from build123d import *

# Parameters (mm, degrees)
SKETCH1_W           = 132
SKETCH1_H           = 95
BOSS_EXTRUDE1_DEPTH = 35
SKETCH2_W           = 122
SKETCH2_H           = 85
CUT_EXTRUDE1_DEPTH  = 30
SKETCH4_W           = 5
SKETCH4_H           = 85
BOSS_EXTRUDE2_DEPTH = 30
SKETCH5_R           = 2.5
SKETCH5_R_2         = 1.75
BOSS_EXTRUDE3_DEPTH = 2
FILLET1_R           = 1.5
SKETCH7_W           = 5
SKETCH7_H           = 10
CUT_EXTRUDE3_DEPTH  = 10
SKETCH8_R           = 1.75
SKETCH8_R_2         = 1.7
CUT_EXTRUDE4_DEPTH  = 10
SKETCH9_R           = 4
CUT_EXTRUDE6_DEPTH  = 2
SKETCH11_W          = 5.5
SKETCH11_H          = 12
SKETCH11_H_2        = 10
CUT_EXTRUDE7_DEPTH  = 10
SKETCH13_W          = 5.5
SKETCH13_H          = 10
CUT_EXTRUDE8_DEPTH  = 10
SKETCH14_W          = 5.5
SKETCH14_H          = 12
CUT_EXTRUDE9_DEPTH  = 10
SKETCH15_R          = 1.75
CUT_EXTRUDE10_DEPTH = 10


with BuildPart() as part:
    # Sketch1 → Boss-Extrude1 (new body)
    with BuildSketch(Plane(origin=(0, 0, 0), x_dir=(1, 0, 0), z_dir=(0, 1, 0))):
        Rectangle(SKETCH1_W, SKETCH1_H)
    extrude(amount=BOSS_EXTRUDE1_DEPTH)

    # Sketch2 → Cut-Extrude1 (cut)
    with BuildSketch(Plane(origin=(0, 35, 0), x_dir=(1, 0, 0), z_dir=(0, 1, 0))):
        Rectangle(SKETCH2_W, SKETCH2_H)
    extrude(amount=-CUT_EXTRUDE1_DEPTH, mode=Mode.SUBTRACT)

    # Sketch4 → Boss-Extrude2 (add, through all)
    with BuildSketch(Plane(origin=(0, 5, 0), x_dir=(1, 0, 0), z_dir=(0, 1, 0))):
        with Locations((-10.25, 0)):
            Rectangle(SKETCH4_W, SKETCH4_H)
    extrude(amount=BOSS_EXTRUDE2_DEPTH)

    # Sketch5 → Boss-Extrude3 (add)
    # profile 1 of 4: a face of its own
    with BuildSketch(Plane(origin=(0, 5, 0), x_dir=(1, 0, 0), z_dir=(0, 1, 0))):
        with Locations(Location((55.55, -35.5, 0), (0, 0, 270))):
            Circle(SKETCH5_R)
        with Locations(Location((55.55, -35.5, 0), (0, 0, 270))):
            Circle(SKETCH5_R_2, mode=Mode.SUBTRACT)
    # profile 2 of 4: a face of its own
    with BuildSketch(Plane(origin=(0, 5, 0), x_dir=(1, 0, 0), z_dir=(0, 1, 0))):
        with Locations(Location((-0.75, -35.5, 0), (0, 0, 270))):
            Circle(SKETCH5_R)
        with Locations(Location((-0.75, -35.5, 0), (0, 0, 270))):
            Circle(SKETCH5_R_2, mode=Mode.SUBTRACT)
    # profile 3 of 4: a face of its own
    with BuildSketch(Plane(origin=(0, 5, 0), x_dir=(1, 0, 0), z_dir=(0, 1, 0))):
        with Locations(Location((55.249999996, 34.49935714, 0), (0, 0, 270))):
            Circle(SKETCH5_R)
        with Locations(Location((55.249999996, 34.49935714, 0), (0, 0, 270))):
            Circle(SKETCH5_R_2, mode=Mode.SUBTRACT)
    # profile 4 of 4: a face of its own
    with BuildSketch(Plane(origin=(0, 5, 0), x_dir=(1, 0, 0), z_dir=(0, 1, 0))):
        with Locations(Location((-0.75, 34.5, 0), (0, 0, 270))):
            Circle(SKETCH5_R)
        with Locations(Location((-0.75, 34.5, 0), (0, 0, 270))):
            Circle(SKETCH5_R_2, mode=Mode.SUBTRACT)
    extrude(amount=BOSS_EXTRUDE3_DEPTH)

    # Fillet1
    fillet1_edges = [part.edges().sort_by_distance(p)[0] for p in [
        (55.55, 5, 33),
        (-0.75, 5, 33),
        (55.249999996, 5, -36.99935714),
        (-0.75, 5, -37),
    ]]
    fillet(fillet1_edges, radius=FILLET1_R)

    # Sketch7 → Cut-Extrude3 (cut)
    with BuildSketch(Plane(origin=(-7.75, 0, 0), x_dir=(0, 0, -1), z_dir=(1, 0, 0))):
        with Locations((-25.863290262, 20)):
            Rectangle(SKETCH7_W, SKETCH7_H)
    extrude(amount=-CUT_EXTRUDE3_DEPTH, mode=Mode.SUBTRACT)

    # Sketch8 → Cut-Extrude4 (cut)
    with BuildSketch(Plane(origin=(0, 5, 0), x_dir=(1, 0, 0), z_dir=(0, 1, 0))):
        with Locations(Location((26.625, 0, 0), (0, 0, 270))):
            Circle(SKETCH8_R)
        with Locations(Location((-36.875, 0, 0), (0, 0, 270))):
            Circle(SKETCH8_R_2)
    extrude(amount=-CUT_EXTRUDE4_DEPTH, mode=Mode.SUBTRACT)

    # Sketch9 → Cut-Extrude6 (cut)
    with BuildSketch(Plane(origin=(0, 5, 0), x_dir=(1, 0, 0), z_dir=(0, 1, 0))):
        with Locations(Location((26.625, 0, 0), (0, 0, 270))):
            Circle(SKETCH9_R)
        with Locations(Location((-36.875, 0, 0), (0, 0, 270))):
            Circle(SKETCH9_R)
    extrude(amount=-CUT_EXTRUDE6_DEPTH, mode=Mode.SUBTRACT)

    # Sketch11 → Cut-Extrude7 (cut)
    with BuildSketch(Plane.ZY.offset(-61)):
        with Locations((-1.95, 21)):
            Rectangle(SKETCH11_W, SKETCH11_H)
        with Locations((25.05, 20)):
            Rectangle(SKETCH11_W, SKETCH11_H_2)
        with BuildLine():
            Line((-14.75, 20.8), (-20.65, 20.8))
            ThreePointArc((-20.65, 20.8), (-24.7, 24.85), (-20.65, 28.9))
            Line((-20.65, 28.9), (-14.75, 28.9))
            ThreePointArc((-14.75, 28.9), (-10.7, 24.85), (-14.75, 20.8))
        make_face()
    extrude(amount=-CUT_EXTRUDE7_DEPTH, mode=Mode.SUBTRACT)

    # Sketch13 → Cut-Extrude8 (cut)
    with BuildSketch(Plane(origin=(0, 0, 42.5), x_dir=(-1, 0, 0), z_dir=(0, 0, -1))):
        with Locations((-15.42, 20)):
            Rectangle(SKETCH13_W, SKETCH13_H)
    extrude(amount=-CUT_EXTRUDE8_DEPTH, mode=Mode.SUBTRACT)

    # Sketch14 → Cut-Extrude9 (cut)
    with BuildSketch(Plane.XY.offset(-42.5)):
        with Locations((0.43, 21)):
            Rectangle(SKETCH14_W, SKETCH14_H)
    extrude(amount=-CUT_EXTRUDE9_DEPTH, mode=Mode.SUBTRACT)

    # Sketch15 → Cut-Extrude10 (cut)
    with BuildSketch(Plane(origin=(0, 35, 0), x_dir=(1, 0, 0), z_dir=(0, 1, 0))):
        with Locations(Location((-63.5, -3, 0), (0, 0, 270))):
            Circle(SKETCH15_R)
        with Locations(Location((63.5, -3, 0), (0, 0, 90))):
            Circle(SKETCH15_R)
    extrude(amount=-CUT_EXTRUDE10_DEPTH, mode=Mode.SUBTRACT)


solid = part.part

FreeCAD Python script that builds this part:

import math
import FreeCAD as App
import Part
import Sketcher


def edges_at(feature, points):
    """Names of the edges that pass closest to the given points."""
    edges = feature.Shape.Edges
    near = lambda p: min(range(len(edges)), key=lambda i: edges[i].distToShape(Part.Vertex(*p))[0])
    return sorted({f"Edge{near(p) + 1}" for p in points})

doc = App.newDocument("Part")
body = doc.addObject("PartDesign::Body", "Body")

sketch1 = doc.addObject("Sketcher::SketchObject", "Sketch")
body.addObject(sketch1)
sketch1.AttachmentSupport = (doc.XZ_Plane, [""])
sketch1.MapMode = "FlatFace"
sketch1.addGeometry(Part.LineSegment(App.Vector(-66, -47.5, 0), App.Vector(-66, 47.5, 0)), False)
sketch1.addGeometry(Part.LineSegment(App.Vector(-66, 47.5, 0), App.Vector(66, 47.5, 0)), False)
sketch1.addGeometry(Part.LineSegment(App.Vector(66, 47.5, 0), App.Vector(66, -47.5, 0)), False)
sketch1.addGeometry(Part.LineSegment(App.Vector(66, -47.5, 0), App.Vector(-66, -47.5, 0)), False)
sketch1.addConstraint(Sketcher.Constraint("Coincident", 0, 2, 1, 1))
sketch1.addConstraint(Sketcher.Constraint("Coincident", 1, 2, 2, 1))
sketch1.addConstraint(Sketcher.Constraint("Coincident", 2, 2, 3, 1))
sketch1.addConstraint(Sketcher.Constraint("Coincident", 3, 2, 0, 1))
sketch1.addConstraint(Sketcher.Constraint("Vertical", 0))
sketch1.addConstraint(Sketcher.Constraint("Horizontal", 1))
sketch1.addConstraint(Sketcher.Constraint("Vertical", 2))
sketch1.addConstraint(Sketcher.Constraint("Horizontal", 3))
sketch1.addConstraint(Sketcher.Constraint("Symmetric", 0, 2, 2, 2, -1, 1))
sketch1.addConstraint(Sketcher.Constraint("DistanceX", 1, 1, 1, 2, 132.0))
sketch1.addConstraint(Sketcher.Constraint("DistanceY", 0, 1, 0, 2, 95.0))
pad1 = doc.addObject("PartDesign::Pad", "Pad")
body.addObject(pad1)
pad1.Profile = sketch1
pad1.Length = 35
pad1.Reversed = True

sketch2 = doc.addObject("Sketcher::SketchObject", "Sketch001")
body.addObject(sketch2)
sketch2.AttachmentSupport = (doc.XZ_Plane, [""])
sketch2.MapMode = "FlatFace"
sketch2.AttachmentOffset = App.Placement(App.Vector(0, 0, -35), App.Rotation())
sketch2.addGeometry(Part.LineSegment(App.Vector(-61, -42.5, 0), App.Vector(-61, 42.5, 0)), False)
sketch2.addGeometry(Part.LineSegment(App.Vector(-61, 42.5, 0), App.Vector(61, 42.5, 0)), False)
sketch2.addGeometry(Part.LineSegment(App.Vector(61, 42.5, 0), App.Vector(61, -42.5, 0)), False)
sketch2.addGeometry(Part.LineSegment(App.Vector(61, -42.5, 0), App.Vector(-61, -42.5, 0)), False)
sketch2.addConstraint(Sketcher.Constraint("Coincident", 0, 2, 1, 1))
sketch2.addConstraint(Sketcher.Constraint("Coincident", 1, 2, 2, 1))
sketch2.addConstraint(Sketcher.Constraint("Coincident", 2, 2, 3, 1))
sketch2.addConstraint(Sketcher.Constraint("Coincident", 3, 2, 0, 1))
sketch2.addConstraint(Sketcher.Constraint("Vertical", 0))
sketch2.addConstraint(Sketcher.Constraint("Horizontal", 1))
sketch2.addConstraint(Sketcher.Constraint("Vertical", 2))
sketch2.addConstraint(Sketcher.Constraint("Horizontal", 3))
sketch2.addConstraint(Sketcher.Constraint("Symmetric", 0, 2, 2, 2, -1, 1))
sketch2.addConstraint(Sketcher.Constraint("DistanceX", 1, 1, 1, 2, 122.0))
sketch2.addConstraint(Sketcher.Constraint("DistanceY", 0, 1, 0, 2, 85.0))
pocket1 = doc.addObject("PartDesign::Pocket", "Pocket")
body.addObject(pocket1)
pocket1.Profile = sketch2
pocket1.Length = 30
pocket1.Reversed = True

sketch3 = doc.addObject("Sketcher::SketchObject", "Sketch002")
body.addObject(sketch3)
sketch3.AttachmentSupport = (doc.XZ_Plane, [""])
sketch3.MapMode = "FlatFace"
sketch3.AttachmentOffset = App.Placement(App.Vector(0, 0, -5), App.Rotation())
sketch3.addGeometry(Part.LineSegment(App.Vector(-12.75, -42.5, 0), App.Vector(-12.75, 42.5, 0)), False)
sketch3.addGeometry(Part.LineSegment(App.Vector(-12.75, 42.5, 0), App.Vector(-7.75, 42.5, 0)), False)
sketch3.addGeometry(Part.LineSegment(App.Vector(-7.75, 42.5, 0), App.Vector(-7.75, -42.5, 0)), False)
sketch3.addGeometry(Part.LineSegment(App.Vector(-7.75, -42.5, 0), App.Vector(-12.75, -42.5, 0)), False)
sketch3.addConstraint(Sketcher.Constraint("Coincident", 0, 2, 1, 1))
sketch3.addConstraint(Sketcher.Constraint("Coincident", 1, 2, 2, 1))
sketch3.addConstraint(Sketcher.Constraint("Coincident", 2, 2, 3, 1))
sketch3.addConstraint(Sketcher.Constraint("Coincident", 3, 2, 0, 1))
sketch3.addConstraint(Sketcher.Constraint("Vertical", 0))
sketch3.addConstraint(Sketcher.Constraint("Horizontal", 1))
sketch3.addConstraint(Sketcher.Constraint("Vertical", 2))
sketch3.addConstraint(Sketcher.Constraint("Horizontal", 3))
sketch3.addConstraint(Sketcher.Constraint("DistanceX", 1, 1, 1, 2, 5.0))
sketch3.addConstraint(Sketcher.Constraint("DistanceY", 0, 1, 0, 2, 85.0))
sketch3.addConstraint(Sketcher.Constraint("DistanceY", -1, 1, 0, 2, 42.5))
sketch3.addConstraint(Sketcher.Constraint("DistanceX", 0, 2, -1, 1, 12.75))
pad2 = doc.addObject("PartDesign::Pad", "Pad001")
body.addObject(pad2)
pad2.Profile = sketch3
pad2.Length = 30
pad2.Reversed = True

sketch4 = doc.addObject("Sketcher::SketchObject", "Sketch003")
body.addObject(sketch4)
sketch4.AttachmentSupport = (doc.XZ_Plane, [""])
sketch4.MapMode = "FlatFace"
sketch4.AttachmentOffset = App.Placement(App.Vector(0, 0, -5), App.Rotation())
sketch4.addGeometry(Part.Circle(App.Vector(55.55, 35.5, 0), App.Vector(0, 0, 1), 2.5), False)
sketch4.addGeometry(Part.Circle(App.Vector(55.55, 35.5, 0), App.Vector(0, 0, 1), 1.75), False)
sketch4.addGeometry(Part.Circle(App.Vector(-0.75, 35.5, 0), App.Vector(0, 0, 1), 2.5), False)
sketch4.addGeometry(Part.Circle(App.Vector(-0.75, 35.5, 0), App.Vector(0, 0, 1), 1.75), False)
sketch4.addGeometry(Part.Circle(App.Vector(55.25, -34.499357, 0), App.Vector(0, 0, 1), 2.5), False)
sketch4.addGeometry(Part.Circle(App.Vector(55.25, -34.499357, 0), App.Vector(0, 0, 1), 1.75), False)
sketch4.addGeometry(Part.Circle(App.Vector(-0.75, -34.5, 0), App.Vector(0, 0, 1), 2.5), False)
sketch4.addGeometry(Part.Circle(App.Vector(-0.75, -34.5, 0), App.Vector(0, 0, 1), 1.75), False)
sketch4.addConstraint(Sketcher.Constraint("Coincident", 1, 3, 0, 3))
sketch4.addConstraint(Sketcher.Constraint("Coincident", 3, 3, 2, 3))
sketch4.addConstraint(Sketcher.Constraint("Coincident", 5, 3, 4, 3))
sketch4.addConstraint(Sketcher.Constraint("Coincident", 7, 3, 6, 3))
sketch4.addConstraint(Sketcher.Constraint("Equal", 0, 2))
sketch4.addConstraint(Sketcher.Constraint("Equal", 1, 3))
sketch4.addConstraint(Sketcher.Constraint("Equal", 2, 4))
sketch4.addConstraint(Sketcher.Constraint("Equal", 3, 5))
sketch4.addConstraint(Sketcher.Constraint("Equal", 4, 6))
sketch4.addConstraint(Sketcher.Constraint("Equal", 5, 7))
sketch4.addConstraint(Sketcher.Constraint("Horizontal", 1, 3, 2, 3))
sketch4.addConstraint(Sketcher.Constraint("Vertical", 3, 3, 6, 3))
sketch4.addConstraint(Sketcher.Constraint("Diameter", 0, 5.0))
sketch4.addConstraint(Sketcher.Constraint("Diameter", 1, 3.5))
sketch4.addConstraint(Sketcher.Constraint("DistanceX", 2, 3, 4, 3, 56.0))
sketch4.addConstraint(Sketcher.Constraint("DistanceY", 6, 3, 2, 3, 70.0))
sketch4.addConstraint(Sketcher.Constraint("DistanceY", -1, 1, 0, 3, 35.5))
sketch4.addConstraint(Sketcher.Constraint("DistanceX", 2, 3, 0, 3, 56.3))
sketch4.addConstraint(Sketcher.Constraint("DistanceX", -1, 1, 0, 3, 55.55))
sketch4.addConstraint(Sketcher.Constraint("DistanceY", 4, 3, -1, 1, 34.499357))
pad3 = doc.addObject("PartDesign::Pad", "Pad002")
body.addObject(pad3)
pad3.Profile = sketch4
pad3.Length = 2
pad3.Reversed = True
doc.recompute()

fillet = doc.addObject("PartDesign::Fillet", "Fillet")
body.addObject(fillet)
fillet.Base = (pad3, edges_at(pad3, [
    (55.55, 5, 33),
    (-0.75, 5, 33),
    (55.25, 5, -36.999),
    (-0.75, 5, -37),
]))
fillet.Radius = 1.5

sketch5 = doc.addObject("Sketcher::SketchObject", "Sketch004")
body.addObject(sketch5)
sketch5.AttachmentSupport = (doc.YZ_Plane, [""])
sketch5.MapMode = "FlatFace"
sketch5.AttachmentOffset = App.Placement(App.Vector(0, 0, -7.75), App.Rotation())
sketch5.addGeometry(Part.LineSegment(App.Vector(25, 28.36329, 0), App.Vector(15, 28.36329, 0)), False)
sketch5.addGeometry(Part.LineSegment(App.Vector(15, 28.36329, 0), App.Vector(15, 23.36329, 0)), False)
sketch5.addGeometry(Part.LineSegment(App.Vector(15, 23.36329, 0), App.Vector(25, 23.36329, 0)), False)
sketch5.addGeometry(Part.LineSegment(App.Vector(25, 23.36329, 0), App.Vector(25, 28.36329, 0)), False)
sketch5.addConstraint(Sketcher.Constraint("Coincident", 0, 2, 1, 1))
sketch5.addConstraint(Sketcher.Constraint("Coincident", 1, 2, 2, 1))
sketch5.addConstraint(Sketcher.Constraint("Coincident", 2, 2, 3, 1))
sketch5.addConstraint(Sketcher.Constraint("Coincident", 3, 2, 0, 1))
sketch5.addConstraint(Sketcher.Constraint("Horizontal", 0))
sketch5.addConstraint(Sketcher.Constraint("Vertical", 1))
sketch5.addConstraint(Sketcher.Constraint("Horizontal", 2))
sketch5.addConstraint(Sketcher.Constraint("Vertical", 3))
sketch5.addConstraint(Sketcher.Constraint("DistanceX", 0, 2, 0, 1, 10.0))
sketch5.addConstraint(Sketcher.Constraint("DistanceY", 1, 2, 1, 1, 5.0))
sketch5.addConstraint(Sketcher.Constraint("DistanceX", -1, 1, 0, 2, 15.0))
sketch5.addConstraint(Sketcher.Constraint("DistanceY", -1, 1, 0, 2, 28.36329))
pocket2 = doc.addObject("PartDesign::Pocket", "Pocket001")
body.addObject(pocket2)
pocket2.Profile = sketch5
pocket2.Length = 10

sketch6 = doc.addObject("Sketcher::SketchObject", "Sketch005")
body.addObject(sketch6)
sketch6.AttachmentSupport = (doc.XZ_Plane, [""])
sketch6.MapMode = "FlatFace"
sketch6.AttachmentOffset = App.Placement(App.Vector(0, 0, -5), App.Rotation())
sketch6.addGeometry(Part.Circle(App.Vector(26.625, 0, 0), App.Vector(0, 0, 1), 1.75), False)
sketch6.addGeometry(Part.Circle(App.Vector(-36.875, 0, 0), App.Vector(0, 0, 1), 1.7), False)
sketch6.addConstraint(Sketcher.Constraint("PointOnObject", 0, 3, -1))
sketch6.addConstraint(Sketcher.Constraint("PointOnObject", 1, 3, -1))
sketch6.addConstraint(Sketcher.Constraint("Diameter", 0, 3.5))
sketch6.addConstraint(Sketcher.Constraint("Diameter", 1, 3.4))
sketch6.addConstraint(Sketcher.Constraint("DistanceX", 1, 3, 0, 3, 63.5))
sketch6.addConstraint(Sketcher.Constraint("DistanceX", -1, 1, 0, 3, 26.625))
pocket3 = doc.addObject("PartDesign::Pocket", "Pocket002")
body.addObject(pocket3)
pocket3.Profile = sketch6
pocket3.Length = 10
pocket3.Reversed = True

sketch7 = doc.addObject("Sketcher::SketchObject", "Sketch006")
body.addObject(sketch7)
sketch7.AttachmentSupport = (doc.XZ_Plane, [""])
sketch7.MapMode = "FlatFace"
sketch7.AttachmentOffset = App.Placement(App.Vector(0, 0, -5), App.Rotation())
sketch7.addGeometry(Part.Circle(App.Vector(26.625, 0, 0), App.Vector(0, 0, 1), 4), False)
sketch7.addGeometry(Part.Circle(App.Vector(-36.875, 0, 0), App.Vector(0, 0, 1), 4), False)
sketch7.addConstraint(Sketcher.Constraint("Equal", 0, 1))
sketch7.addConstraint(Sketcher.Constraint("PointOnObject", 0, 3, -1))
sketch7.addConstraint(Sketcher.Constraint("PointOnObject", 1, 3, -1))
sketch7.addConstraint(Sketcher.Constraint("Diameter", 0, 8.0))
sketch7.addConstraint(Sketcher.Constraint("DistanceX", 1, 3, 0, 3, 63.5))
sketch7.addConstraint(Sketcher.Constraint("DistanceX", -1, 1, 0, 3, 26.625))
pocket4 = doc.addObject("PartDesign::Pocket", "Pocket003")
body.addObject(pocket4)
pocket4.Profile = sketch7
pocket4.Length = 2
pocket4.Reversed = True

sketch8 = doc.addObject("Sketcher::SketchObject", "Sketch007")
body.addObject(sketch8)
sketch8.AttachmentSupport = (doc.YZ_Plane, [""])
sketch8.MapMode = "FlatFace"
sketch8.AttachmentOffset = App.Placement(App.Vector(0, 0, 61), App.Rotation())
sketch8.addGeometry(Part.LineSegment(App.Vector(27, -4.7, 0), App.Vector(15, -4.7, 0)), False)
sketch8.addGeometry(Part.LineSegment(App.Vector(15, -4.7, 0), App.Vector(15, 0.8, 0)), False)
sketch8.addGeometry(Part.LineSegment(App.Vector(15, 0.8, 0), App.Vector(27, 0.8, 0)), False)
sketch8.addGeometry(Part.LineSegment(App.Vector(27, 0.8, 0), App.Vector(27, -4.7, 0)), False)
sketch8.addGeometry(Part.LineSegment(App.Vector(25, 22.3, 0), App.Vector(15, 22.3, 0)), False)
sketch8.addGeometry(Part.LineSegment(App.Vector(15, 22.3, 0), App.Vector(15, 27.8, 0)), False)
sketch8.addGeometry(Part.LineSegment(App.Vector(15, 27.8, 0), App.Vector(25, 27.8, 0)), False)
sketch8.addGeometry(Part.LineSegment(App.Vector(25, 27.8, 0), App.Vector(25, 22.3, 0)), False)
sketch8.addGeometry(Part.LineSegment(App.Vector(20.8, -20.65, 0), App.Vector(20.8, -14.75, 0)), False)
sketch8.addGeometry(Part.ArcOfCircle(Part.Circle(App.Vector(24.85, -14.75, 0), App.Vector(0, 0, 1), 4.05), math.radians(0), math.radians(180)), False)
sketch8.addGeometry(Part.LineSegment(App.Vector(28.9, -14.75, 0), App.Vector(28.9, -20.65, 0)), False)
sketch8.addGeometry(Part.ArcOfCircle(Part.Circle(App.Vector(24.85, -20.65, 0), App.Vector(0, 0, 1), 4.05), math.radians(180), math.radians(360)), False)
sketch8.addConstraint(Sketcher.Constraint("Coincident", 0, 2, 1, 1))
sketch8.addConstraint(Sketcher.Constraint("Coincident", 1, 2, 2, 1))
sketch8.addConstraint(Sketcher.Constraint("Coincident", 2, 2, 3, 1))
sketch8.addConstraint(Sketcher.Constraint("Coincident", 3, 2, 0, 1))
sketch8.addConstraint(Sketcher.Constraint("Coincident", 4, 2, 5, 1))
sketch8.addConstraint(Sketcher.Constraint("Coincident", 5, 2, 6, 1))
sketch8.addConstraint(Sketcher.Constraint("Coincident", 6, 2, 7, 1))
sketch8.addConstraint(Sketcher.Constraint("Coincident", 7, 2, 4, 1))
sketch8.addConstraint(Sketcher.Constraint("Tangent", 8, 2, 9, 2))
sketch8.addConstraint(Sketcher.Constraint("Tangent", 9, 1, 10, 1))
sketch8.addConstraint(Sketcher.Constraint("Tangent", 10, 2, 11, 2))
sketch8.addConstraint(Sketcher.Constraint("Tangent", 11, 1, 8, 1))
sketch8.addConstraint(Sketcher.Constraint("Horizontal", 0))
sketch8.addConstraint(Sketcher.Constraint("Vertical", 1))
sketch8.addConstraint(Sketcher.Constraint("Horizontal", 2))
sketch8.addConstraint(Sketcher.Constraint("Vertical", 3))
sketch8.addConstraint(Sketcher.Constraint("Horizontal", 4))
sketch8.addConstraint(Sketcher.Constraint("Vertical", 5))
sketch8.addConstraint(Sketcher.Constraint("Horizontal", 6))
sketch8.addConstraint(Sketcher.Constraint("Vertical", 7))
sketch8.addConstraint(Sketcher.Constraint("Vertical", 8))
sketch8.addConstraint(Sketcher.Constraint("Vertical", 10))
sketch8.addConstraint(Sketcher.Constraint("Vertical", 1, 2, 4, 2))
sketch8.addConstraint(Sketcher.Constraint("Equal", 3, 5))
sketch8.addConstraint(Sketcher.Constraint("DistanceX", 0, 2, 0, 1, 12.0))
sketch8.addConstraint(Sketcher.Constraint("DistanceX", 4, 2, 4, 1, 10.0))
sketch8.addConstraint(Sketcher.Constraint("Radius", 9, 4.05))
sketch8.addConstraint(Sketcher.Constraint("DistanceY", 1, 1, 1, 2, 5.5))
sketch8.addConstraint(Sketcher.Constraint("DistanceY", 8, 1, 8, 2, 5.9))
sketch8.addConstraint(Sketcher.Constraint("DistanceX", -1, 1, 0, 2, 15.0))
sketch8.addConstraint(Sketcher.Constraint("DistanceY", 0, 2, 4, 2, 27.0))
sketch8.addConstraint(Sketcher.Constraint("DistanceY", 0, 2, -1, 1, 4.7))
sketch8.addConstraint(Sketcher.Constraint("DistanceX", -1, 1, 8, 2, 20.8))
sketch8.addConstraint(Sketcher.Constraint("DistanceY", 9, 3, -1, 1, 14.75))
pocket5 = doc.addObject("PartDesign::Pocket", "Pocket004")
body.addObject(pocket5)
pocket5.Profile = sketch8
pocket5.Length = 10
pocket5.Reversed = True

sketch9 = doc.addObject("Sketcher::SketchObject", "Sketch008")
body.addObject(sketch9)
sketch9.AttachmentSupport = (doc.XY_Plane, [""])
sketch9.MapMode = "FlatFace"
sketch9.AttachmentOffset = App.Placement(App.Vector(0, 0, 42.5), App.Rotation())
sketch9.addGeometry(Part.LineSegment(App.Vector(18.17, 25, 0), App.Vector(18.17, 15, 0)), False)
sketch9.addGeometry(Part.LineSegment(App.Vector(18.17, 15, 0), App.Vector(12.67, 15, 0)), False)
sketch9.addGeometry(Part.LineSegment(App.Vector(12.67, 15, 0), App.Vector(12.67, 25, 0)), False)
sketch9.addGeometry(Part.LineSegment(App.Vector(12.67, 25, 0), App.Vector(18.17, 25, 0)), False)
sketch9.addConstraint(Sketcher.Constraint("Coincident", 0, 2, 1, 1))
sketch9.addConstraint(Sketcher.Constraint("Coincident", 1, 2, 2, 1))
sketch9.addConstraint(Sketcher.Constraint("Coincident", 2, 2, 3, 1))
sketch9.addConstraint(Sketcher.Constraint("Coincident", 3, 2, 0, 1))
sketch9.addConstraint(Sketcher.Constraint("Vertical", 0))
sketch9.addConstraint(Sketcher.Constraint("Horizontal", 1))
sketch9.addConstraint(Sketcher.Constraint("Vertical", 2))
sketch9.addConstraint(Sketcher.Constraint("Horizontal", 3))
sketch9.addConstraint(Sketcher.Constraint("DistanceY", 0, 2, 0, 1, 10.0))
sketch9.addConstraint(Sketcher.Constraint("DistanceX", 1, 2, 1, 1, 5.5))
sketch9.addConstraint(Sketcher.Constraint("DistanceY", -1, 1, 0, 2, 15.0))
sketch9.addConstraint(Sketcher.Constraint("DistanceX", -1, 1, 0, 2, 18.17))
pocket6 = doc.addObject("PartDesign::Pocket", "Pocket005")
body.addObject(pocket6)
pocket6.Profile = sketch9
pocket6.Length = 10
pocket6.Reversed = True

sketch10 = doc.addObject("Sketcher::SketchObject", "Sketch009")
body.addObject(sketch10)
sketch10.AttachmentSupport = (doc.XY_Plane, [""])
sketch10.MapMode = "FlatFace"
sketch10.AttachmentOffset = App.Placement(App.Vector(0, 0, -42.5), App.Rotation())
sketch10.addGeometry(Part.LineSegment(App.Vector(-2.32, 27, 0), App.Vector(-2.32, 15, 0)), False)
sketch10.addGeometry(Part.LineSegment(App.Vector(-2.32, 15, 0), App.Vector(3.18, 15, 0)), False)
sketch10.addGeometry(Part.LineSegment(App.Vector(3.18, 15, 0), App.Vector(3.18, 27, 0)), False)
sketch10.addGeometry(Part.LineSegment(App.Vector(3.18, 27, 0), App.Vector(-2.32, 27, 0)), False)
sketch10.addConstraint(Sketcher.Constraint("Coincident", 0, 2, 1, 1))
sketch10.addConstraint(Sketcher.Constraint("Coincident", 1, 2, 2, 1))
sketch10.addConstraint(Sketcher.Constraint("Coincident", 2, 2, 3, 1))
sketch10.addConstraint(Sketcher.Constraint("Coincident", 3, 2, 0, 1))
sketch10.addConstraint(Sketcher.Constraint("Vertical", 0))
sketch10.addConstraint(Sketcher.Constraint("Horizontal", 1))
sketch10.addConstraint(Sketcher.Constraint("Vertical", 2))
sketch10.addConstraint(Sketcher.Constraint("Horizontal", 3))
sketch10.addConstraint(Sketcher.Constraint("DistanceY", 0, 2, 0, 1, 12.0))
sketch10.addConstraint(Sketcher.Constraint("DistanceX", 1, 1, 1, 2, 5.5))
sketch10.addConstraint(Sketcher.Constraint("DistanceY", -1, 1, 0, 2, 15.0))
sketch10.addConstraint(Sketcher.Constraint("DistanceX", 0, 2, -1, 1, 2.32))
pocket7 = doc.addObject("PartDesign::Pocket", "Pocket006")
body.addObject(pocket7)
pocket7.Profile = sketch10
pocket7.Length = 10

sketch11 = doc.addObject("Sketcher::SketchObject", "Sketch010")
body.addObject(sketch11)
sketch11.AttachmentSupport = (doc.XZ_Plane, [""])
sketch11.MapMode = "FlatFace"
sketch11.AttachmentOffset = App.Placement(App.Vector(0, 0, -35), App.Rotation())
sketch11.addGeometry(Part.Circle(App.Vector(-63.5, 3, 0), App.Vector(0, 0, 1), 1.75), False)
sketch11.addGeometry(Part.Circle(App.Vector(63.5, 3, 0), App.Vector(0, 0, 1), 1.75), False)
sketch11.addConstraint(Sketcher.Constraint("Equal", 0, 1))
sketch11.addConstraint(Sketcher.Constraint("Symmetric", 0, 3, 1, 3, -2))
sketch11.addConstraint(Sketcher.Constraint("Diameter", 0, 3.5))
sketch11.addConstraint(Sketcher.Constraint("DistanceY", -1, 1, 0, 3, 3.0))
sketch11.addConstraint(Sketcher.Constraint("DistanceX", 0, 3, 1, 3, 127.0))
pocket8 = doc.addObject("PartDesign::Pocket", "Pocket007")
body.addObject(pocket8)
pocket8.Profile = sketch11
pocket8.Length = 10
pocket8.Reversed = True

doc.recompute()
